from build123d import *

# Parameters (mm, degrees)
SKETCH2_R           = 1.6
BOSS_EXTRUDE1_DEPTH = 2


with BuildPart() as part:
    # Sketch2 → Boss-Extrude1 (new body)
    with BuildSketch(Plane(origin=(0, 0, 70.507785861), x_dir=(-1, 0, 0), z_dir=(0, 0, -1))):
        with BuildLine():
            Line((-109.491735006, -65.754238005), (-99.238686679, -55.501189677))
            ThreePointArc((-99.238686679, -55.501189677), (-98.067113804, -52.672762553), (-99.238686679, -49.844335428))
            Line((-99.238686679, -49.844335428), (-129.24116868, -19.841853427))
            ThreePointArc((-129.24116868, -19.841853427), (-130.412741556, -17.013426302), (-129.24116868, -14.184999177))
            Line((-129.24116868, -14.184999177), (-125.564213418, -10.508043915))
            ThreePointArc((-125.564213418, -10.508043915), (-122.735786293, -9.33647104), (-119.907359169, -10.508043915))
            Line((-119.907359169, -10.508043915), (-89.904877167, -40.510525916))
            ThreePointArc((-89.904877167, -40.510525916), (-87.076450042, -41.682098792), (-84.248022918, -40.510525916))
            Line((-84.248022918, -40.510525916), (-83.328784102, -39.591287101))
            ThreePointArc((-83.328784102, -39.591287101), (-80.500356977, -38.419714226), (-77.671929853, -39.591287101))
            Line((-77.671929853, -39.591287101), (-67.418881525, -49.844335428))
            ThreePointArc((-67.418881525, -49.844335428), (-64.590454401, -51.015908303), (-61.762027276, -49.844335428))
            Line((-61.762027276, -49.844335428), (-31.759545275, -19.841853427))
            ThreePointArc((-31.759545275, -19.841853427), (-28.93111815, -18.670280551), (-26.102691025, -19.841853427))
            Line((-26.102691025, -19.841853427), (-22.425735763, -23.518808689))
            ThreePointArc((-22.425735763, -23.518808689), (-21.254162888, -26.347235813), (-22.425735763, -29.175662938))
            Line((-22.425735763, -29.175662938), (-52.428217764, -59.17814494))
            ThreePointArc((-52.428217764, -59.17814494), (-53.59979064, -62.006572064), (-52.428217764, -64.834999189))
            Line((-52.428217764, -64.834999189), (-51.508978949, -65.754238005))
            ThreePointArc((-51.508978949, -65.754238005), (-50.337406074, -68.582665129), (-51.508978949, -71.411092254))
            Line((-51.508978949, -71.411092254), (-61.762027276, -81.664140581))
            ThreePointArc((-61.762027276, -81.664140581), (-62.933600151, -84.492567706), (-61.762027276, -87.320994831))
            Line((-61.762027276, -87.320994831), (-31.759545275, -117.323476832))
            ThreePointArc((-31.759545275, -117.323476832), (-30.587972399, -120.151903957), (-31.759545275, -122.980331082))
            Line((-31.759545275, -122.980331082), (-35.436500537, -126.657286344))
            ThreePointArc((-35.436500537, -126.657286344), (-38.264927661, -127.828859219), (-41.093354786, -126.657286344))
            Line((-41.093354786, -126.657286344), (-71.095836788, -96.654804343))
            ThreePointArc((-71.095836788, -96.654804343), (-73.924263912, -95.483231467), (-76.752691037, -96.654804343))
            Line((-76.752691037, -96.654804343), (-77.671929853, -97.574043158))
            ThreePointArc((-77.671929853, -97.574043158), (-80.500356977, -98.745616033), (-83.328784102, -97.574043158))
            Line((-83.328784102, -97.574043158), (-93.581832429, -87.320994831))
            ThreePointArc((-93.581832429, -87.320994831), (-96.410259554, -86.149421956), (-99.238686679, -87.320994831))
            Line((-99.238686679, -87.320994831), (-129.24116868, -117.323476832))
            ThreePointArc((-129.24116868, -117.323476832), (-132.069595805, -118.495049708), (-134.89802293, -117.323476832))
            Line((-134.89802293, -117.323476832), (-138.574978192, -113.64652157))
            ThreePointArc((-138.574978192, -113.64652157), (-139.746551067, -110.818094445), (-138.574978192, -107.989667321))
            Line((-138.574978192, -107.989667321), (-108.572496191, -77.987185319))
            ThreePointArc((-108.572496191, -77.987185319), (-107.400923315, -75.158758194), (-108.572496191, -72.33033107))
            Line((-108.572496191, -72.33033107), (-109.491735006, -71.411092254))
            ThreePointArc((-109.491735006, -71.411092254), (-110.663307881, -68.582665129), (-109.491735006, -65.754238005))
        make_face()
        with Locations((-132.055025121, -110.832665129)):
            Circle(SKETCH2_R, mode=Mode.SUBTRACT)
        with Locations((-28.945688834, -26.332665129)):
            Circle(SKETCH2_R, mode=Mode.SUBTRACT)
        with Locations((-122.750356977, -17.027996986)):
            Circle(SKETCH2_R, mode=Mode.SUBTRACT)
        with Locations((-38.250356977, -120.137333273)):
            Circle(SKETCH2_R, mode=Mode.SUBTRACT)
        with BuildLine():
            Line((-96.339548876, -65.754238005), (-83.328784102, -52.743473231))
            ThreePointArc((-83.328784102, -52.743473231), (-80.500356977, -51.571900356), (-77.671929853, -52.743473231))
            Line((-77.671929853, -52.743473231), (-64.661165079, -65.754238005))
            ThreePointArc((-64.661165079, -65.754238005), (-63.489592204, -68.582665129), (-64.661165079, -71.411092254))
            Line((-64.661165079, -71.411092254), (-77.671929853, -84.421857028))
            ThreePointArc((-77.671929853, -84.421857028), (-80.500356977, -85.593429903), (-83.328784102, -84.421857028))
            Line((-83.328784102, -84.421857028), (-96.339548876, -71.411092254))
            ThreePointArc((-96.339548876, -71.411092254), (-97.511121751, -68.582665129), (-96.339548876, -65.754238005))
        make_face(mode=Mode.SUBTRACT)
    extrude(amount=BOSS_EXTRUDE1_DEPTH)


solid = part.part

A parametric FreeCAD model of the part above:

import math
import FreeCAD as App
import Part
import Sketcher
Q = App.Units.Quantity

doc = App.newDocument("Part")
params = doc.addObject("Spreadsheet::Sheet", "Params")
for row, (alias, value) in enumerate([
    ("sketch1_radius", "4 mm"),
    ("sketch1_diameter", "3.2 mm"),
    ("sketch1_length", "14.5 mm"),
    ("sketch1_length2", "1.3 mm"),
    ("sketch1_length3", "18.4 mm"),
    ("pad1_length", "2 mm"),
], start=1):
    params.set(f"A{row}", alias)
    params.set(f"B{row}", "=" + value)
    params.setAlias(f"B{row}", alias)

body = doc.addObject("PartDesign::Body", "Body")

# Sketch on XY plane
sketch1 = body.newObject("Sketcher::SketchObject", "Sketch")
sketch1.AttachmentSupport = (doc.getObject("XY_Plane"), [""])
sketch1.MapMode = "FlatFace"
sketch1.AttachmentOffset = App.Placement(App.Vector(0, 0, 70.507786), App.Rotation())
sketch1.addGeometry(Part.LineSegment(App.Vector(99.2, -55.5, 0), App.Vector(109.5, -65.8, 0)), False)
sketch1.addGeometry(Part.ArcOfCircle(Part.Circle(App.Vector(106.7, -68.6, 0), App.Vector(0, 0, 1), 4), math.radians(-45), math.radians(45)), False)
sketch1.addGeometry(Part.LineSegment(App.Vector(109.5, -71.4, 0), App.Vector(108.6, -72.3, 0)), False)
sketch1.addGeometry(Part.ArcOfCircle(Part.Circle(App.Vector(111.4, -75.2, 0), App.Vector(0, 0, 1), 4), math.radians(135), math.radians(225)), False)
sketch1.addGeometry(Part.LineSegment(App.Vector(108.6, -78, 0), App.Vector(138.6, -108, 0)), False)
sketch1.addGeometry(Part.ArcOfCircle(Part.Circle(App.Vector(135.7, -110.8, 0), App.Vector(0, 0, 1), 4), math.radians(-45), math.radians(45)), False)
sketch1.addGeometry(Part.LineSegment(App.Vector(138.6, -113.6, 0), App.Vector(134.9, -117.3, 0)), False)
sketch1.addGeometry(Part.ArcOfCircle(Part.Circle(App.Vector(132.1, -114.5, 0), App.Vector(0, 0, 1), 4), math.radians(-135), math.radians(-45)), False)
sketch1.addGeometry(Part.LineSegment(App.Vector(129.2, -117.3, 0), App.Vector(99.2, -87.3, 0)), False)
sketch1.addGeometry(Part.ArcOfCircle(Part.Circle(App.Vector(96.4, -90.1, 0), App.Vector(0, 0, 1), 4), math.radians(45), math.radians(135)), False)
sketch1.addGeometry(Part.LineSegment(App.Vector(93.6, -87.3, 0), App.Vector(83.3, -97.6, 0)), False)
sketch1.addGeometry(Part.ArcOfCircle(Part.Circle(App.Vector(80.5, -94.7, 0), App.Vector(0, 0, 1), 4), math.radians(-135), math.radians(-45)), False)
sketch1.addGeometry(Part.LineSegment(App.Vector(77.7, -97.6, 0), App.Vector(76.8, -96.7, 0)), False)
sketch1.addGeometry(Part.ArcOfCircle(Part.Circle(App.Vector(73.9, -99.5, 0), App.Vector(0, 0, 1), 4), math.radians(45), math.radians(135)), False)
sketch1.addGeometry(Part.LineSegment(App.Vector(71.1, -96.7, 0), App.Vector(41.1, -126.7, 0)), False)
sketch1.addGeometry(Part.ArcOfCircle(Part.Circle(App.Vector(38.3, -123.8, 0), App.Vector(0, 0, 1), 4), math.radians(-135), math.radians(-45)), False)
sketch1.addGeometry(Part.LineSegment(App.Vector(35.4, -126.7, 0), App.Vector(31.8, -123, 0)), False)
sketch1.addGeometry(Part.ArcOfCircle(Part.Circle(App.Vector(34.6, -120.2, 0), App.Vector(0, 0, 1), 4), math.radians(135), math.radians(225)), False)
sketch1.addGeometry(Part.LineSegment(App.Vector(31.8, -117.3, 0), App.Vector(61.8, -87.3, 0)), False)
sketch1.addGeometry(Part.ArcOfCircle(Part.Circle(App.Vector(58.9, -84.5, 0), App.Vector(0, 0, 1), 4), math.radians(-45), math.radians(45)), False)
sketch1.addGeometry(Part.LineSegment(App.Vector(61.8, -81.7, 0), App.Vector(51.5, -71.4, 0)), False)
sketch1.addGeometry(Part.ArcOfCircle(Part.Circle(App.Vector(54.3, -68.6, 0), App.Vector(0, 0, 1), 4), math.radians(135), math.radians(225)), False)
sketch1.addGeometry(Part.LineSegment(App.Vector(51.5, -65.8, 0), App.Vector(52.4, -64.8, 0)), False)
sketch1.addGeometry(Part.ArcOfCircle(Part.Circle(App.Vector(49.6, -62, 0), App.Vector(0, 0, 1), 4), math.radians(-45), math.radians(45)), False)
sketch1.addGeometry(Part.LineSegment(App.Vector(52.4, -59.2, 0), App.Vector(22.4, -29.2, 0)), False)
sketch1.addGeometry(Part.ArcOfCircle(Part.Circle(App.Vector(25.3, -26.3, 0), App.Vector(0, 0, 1), 4), math.radians(135), math.radians(225)), False)
sketch1.addGeometry(Part.LineSegment(App.Vector(22.4, -23.5, 0), App.Vector(26.1, -19.8, 0)), False)
sketch1.addGeometry(Part.ArcOfCircle(Part.Circle(App.Vector(28.9, -22.7, 0), App.Vector(0, 0, 1), 4), math.radians(45), math.radians(135)), False)
sketch1.addGeometry(Part.LineSegment(App.Vector(31.8, -19.8, 0), App.Vector(61.8, -49.8, 0)), False)
sketch1.addGeometry(Part.ArcOfCircle(Part.Circle(App.Vector(64.6, -47, 0), App.Vector(0, 0, 1), 4), math.radians(-135), math.radians(-45)), False)
sketch1.addGeometry(Part.LineSegment(App.Vector(67.4, -49.8, 0), App.Vector(77.7, -39.6, 0)), False)
sketch1.addGeometry(Part.ArcOfCircle(Part.Circle(App.Vector(80.5, -42.4, 0), App.Vector(0, 0, 1), 4), math.radians(45), math.radians(135)), False)
sketch1.addGeometry(Part.LineSegment(App.Vector(83.3, -39.6, 0), App.Vector(84.2, -40.5, 0)), False)
sketch1.addGeometry(Part.ArcOfCircle(Part.Circle(App.Vector(87.1, -37.7, 0), App.Vector(0, 0, 1), 4), math.radians(-135), math.radians(-45)), False)
sketch1.addGeometry(Part.LineSegment(App.Vector(89.9, -40.5, 0), App.Vector(119.9, -10.5, 0)), False)
sketch1.addGeometry(Part.ArcOfCircle(Part.Circle(App.Vector(122.7, -13.3, 0), App.Vector(0, 0, 1), 4), math.radians(45), math.radians(135)), False)
sketch1.addGeometry(Part.LineSegment(App.Vector(125.6, -10.5, 0), App.Vector(129.2, -14.2, 0)), False)
sketch1.addGeometry(Part.ArcOfCircle(Part.Circle(App.Vector(126.4, -17, 0), App.Vector(0, 0, 1), 4), math.radians(-45), math.radians(45)), False)
sketch1.addGeometry(Part.LineSegment(App.Vector(129.2, -19.8, 0), App.Vector(99.2, -49.8, 0)), False)
sketch1.addGeometry(Part.ArcOfCircle(Part.Circle(App.Vector(102.1, -52.7, 0), App.Vector(0, 0, 1), 4), math.radians(135), math.radians(225)), False)
sketch1.addGeometry(Part.Circle(App.Vector(38.3, -120.1, 0), App.Vector(0, 0, 1), 1.6), False)
sketch1.addGeometry(Part.Circle(App.Vector(132.1, -110.8, 0), App.Vector(0, 0, 1), 1.6), False)
sketch1.addGeometry(Part.LineSegment(App.Vector(96.3, -65.8, 0), App.Vector(83.3, -52.7, 0)), False)
sketch1.addGeometry(Part.ArcOfCircle(Part.Circle(App.Vector(80.5, -55.6, 0), App.Vector(0, 0, 1), 4), math.radians(45), math.radians(135)), False)
sketch1.addGeometry(Part.LineSegment(App.Vector(77.7, -52.7, 0), App.Vector(64.7, -65.8, 0)), False)
sketch1.addGeometry(Part.ArcOfCircle(Part.Circle(App.Vector(67.5, -68.6, 0), App.Vector(0, 0, 1), 4), math.radians(135), math.radians(225)), False)
sketch1.addGeometry(Part.LineSegment(App.Vector(64.7, -71.4, 0), App.Vector(77.7, -84.4, 0)), False)
sketch1.addGeometry(Part.ArcOfCircle(Part.Circle(App.Vector(80.5, -81.6, 0), App.Vector(0, 0, 1), 4), math.radians(-135), math.radians(-45)), False)
sketch1.addGeometry(Part.LineSegment(App.Vector(83.3, -84.4, 0), App.Vector(96.3, -71.4, 0)), False)
sketch1.addGeometry(Part.ArcOfCircle(Part.Circle(App.Vector(93.5, -68.6, 0), App.Vector(0, 0, 1), 4), math.radians(-45), math.radians(45)), False)
sketch1.addGeometry(Part.Circle(App.Vector(28.9, -26.3, 0), App.Vector(0, 0, 1), 1.6), False)
sketch1.addGeometry(Part.Circle(App.Vector(122.8, -17, 0), App.Vector(0, 0, 1), 1.6), False)
sketch1.addConstraint(Sketcher.Constraint("Tangent", 0, 2, 1, 2))
sketch1.addConstraint(Sketcher.Constraint("Tangent", 1, 1, 2, 1))
sketch1.addConstraint(Sketcher.Constraint("Tangent", 2, 2, 3, 1))
sketch1.addConstraint(Sketcher.Constraint("Tangent", 3, 2, 4, 1))
sketch1.addConstraint(Sketcher.Constraint("Tangent", 4, 2, 5, 2))
sketch1.addConstraint(Sketcher.Constraint("Tangent", 5, 1, 6, 1))
sketch1.addConstraint(Sketcher.Constraint("Tangent", 6, 2, 7, 2))
sketch1.addConstraint(Sketcher.Constraint("Tangent", 7, 1, 8, 1))
sketch1.addConstraint(Sketcher.Constraint("Tangent", 8, 2, 9, 1))
sketch1.addConstraint(Sketcher.Constraint("Tangent", 9, 2, 10, 1))
sketch1.addConstraint(Sketcher.Constraint("Tangent", 10, 2, 11, 2))
sketch1.addConstraint(Sketcher.Constraint("Tangent", 11, 1, 12, 1))
sketch1.addConstraint(Sketcher.Constraint("Tangent", 12, 2, 13, 1))
sketch1.addConstraint(Sketcher.Constraint("Tangent", 13, 2, 14, 1))
sketch1.addConstraint(Sketcher.Constraint("Tangent", 14, 2, 15, 2))
sketch1.addConstraint(Sketcher.Constraint("Tangent", 15, 1, 16, 1))
sketch1.addConstraint(Sketcher.Constraint("Tangent", 16, 2, 17, 2))
sketch1.addConstraint(Sketcher.Constraint("Tangent", 17, 1, 18, 1))
sketch1.addConstraint(Sketcher.Constraint("Tangent", 18, 2, 19, 1))
sketch1.addConstraint(Sketcher.Constraint("Tangent", 19, 2, 20, 1))
sketch1.addConstraint(Sketcher.Constraint("Tangent", 20, 2, 21, 2))
sketch1.addConstraint(Sketcher.Constraint("Tangent", 21, 1, 22, 1))
sketch1.addConstraint(Sketcher.Constraint("Tangent", 22, 2, 23, 1))
sketch1.addConstraint(Sketcher.Constraint("Tangent", 23, 2, 24, 1))
sketch1.addConstraint(Sketcher.Constraint("Tangent", 24, 2, 25, 2))
sketch1.addConstraint(Sketcher.Constraint("Tangent", 25, 1, 26, 1))
sketch1.addConstraint(Sketcher.Constraint("Tangent", 26, 2, 27, 2))
sketch1.addConstraint(Sketcher.Constraint("Tangent", 27, 1, 28, 1))
sketch1.addConstraint(Sketcher.Constraint("Tangent", 28, 2, 29, 1))
sketch1.addConstraint(Sketcher.Constraint("Tangent", 29, 2, 30, 1))
sketch1.addConstraint(Sketcher.Constraint("Tangent", 30, 2, 31, 2))
sketch1.addConstraint(Sketcher.Constraint("Tangent", 31, 1, 32, 1))
sketch1.addConstraint(Sketcher.Constraint("Tangent", 32, 2, 33, 1))
sketch1.addConstraint(Sketcher.Constraint("Tangent", 33, 2, 34, 1))
sketch1.addConstraint(Sketcher.Constraint("Tangent", 34, 2, 35, 2))
sketch1.addConstraint(Sketcher.Constraint("Tangent", 35, 1, 36, 1))
sketch1.addConstraint(Sketcher.Constraint("Tangent", 36, 2, 37, 2))
sketch1.addConstraint(Sketcher.Constraint("Tangent", 37, 1, 38, 1))
sketch1.addConstraint(Sketcher.Constraint("Tangent", 38, 2, 39, 1))
sketch1.addConstraint(Sketcher.Constraint("Tangent", 39, 2, 0, 1))
sketch1.addConstraint(Sketcher.Constraint("Tangent", 42, 2, 43, 1))
sketch1.addConstraint(Sketcher.Constraint("Tangent", 43, 2, 44, 1))
sketch1.addConstraint(Sketcher.Constraint("Tangent", 44, 2, 45, 1))
sketch1.addConstraint(Sketcher.Constraint("Tangent", 45, 2, 46, 1))
sketch1.addConstraint(Sketcher.Constraint("Tangent", 46, 2, 47, 1))
sketch1.addConstraint(Sketcher.Constraint("Tangent", 47, 2, 48, 1))
sketch1.addConstraint(Sketcher.Constraint("Tangent", 48, 2, 49, 1))
sketch1.addConstraint(Sketcher.Constraint("Tangent", 49, 2, 42, 1))
sketch1.addConstraint(Sketcher.Constraint("Equal", 1, 3))
sketch1.addConstraint(Sketcher.Constraint("Equal", 3, 5))
sketch1.addConstraint(Sketcher.Constraint("Equal", 5, 7))
sketch1.addConstraint(Sketcher.Constraint("Equal", 7, 9))
sketch1.addConstraint(Sketcher.Constraint("Equal", 9, 11))
sketch1.addConstraint(Sketcher.Constraint("Equal", 11, 13))
sketch1.addConstraint(Sketcher.Constraint("Equal", 13, 15))
sketch1.addConstraint(Sketcher.Constraint("Equal", 15, 17))
sketch1.addConstraint(Sketcher.Constraint("Equal", 17, 19))
sketch1.addConstraint(Sketcher.Constraint("Equal", 19, 21))
sketch1.addConstraint(Sketcher.Constraint("Equal", 21, 23))
sketch1.addConstraint(Sketcher.Constraint("Equal", 23, 25))
sketch1.addConstraint(Sketcher.Constraint("Equal", 25, 27))
sketch1.addConstraint(Sketcher.Constraint("Equal", 27, 29))
sketch1.addConstraint(Sketcher.Constraint("Equal", 29, 31))
sketch1.addConstraint(Sketcher.Constraint("Equal", 31, 33))
sketch1.addConstraint(Sketcher.Constraint("Equal", 33, 35))
sketch1.addConstraint(Sketcher.Constraint("Equal", 35, 37))
sketch1.addConstraint(Sketcher.Constraint("Equal", 37, 39))
sketch1.addConstraint(Sketcher.Constraint("Equal", 40, 41))
sketch1.addConstraint(Sketcher.Constraint("Equal", 39, 43))
sketch1.addConstraint(Sketcher.Constraint("Equal", 43, 45))
sketch1.addConstraint(Sketcher.Constraint("Equal", 45, 47))
sketch1.addConstraint(Sketcher.Constraint("Equal", 47, 49))
sketch1.addConstraint(Sketcher.Constraint("Equal", 41, 50))
sketch1.addConstraint(Sketcher.Constraint("Equal", 50, 51))
sketch1.addConstraint(Sketcher.Constraint("Perpendicular", 0, 2))
sketch1.addConstraint(Sketcher.Constraint("Perpendicular", 2, 4))
sketch1.addConstraint(Sketcher.Constraint("Perpendicular", 4, 6))
sketch1.addConstraint(Sketcher.Constraint("Perpendicular", 6, 8))
sketch1.addConstraint(Sketcher.Constraint("Perpendicular", 8, 10))
sketch1.addConstraint(Sketcher.Constraint("Perpendicular", 10, 12))
sketch1.addConstraint(Sketcher.Constraint("Perpendicular", 12, 14))
sketch1.addConstraint(Sketcher.Constraint("Perpendicular", 14, 16))
sketch1.addConstraint(Sketcher.Constraint("Perpendicular", 16, 18))
sketch1.addConstraint(Sketcher.Constraint("Perpendicular", 18, 20))
sketch1.addConstraint(Sketcher.Constraint("Perpendicular", 20, 22))
sketch1.addConstraint(Sketcher.Constraint("Perpendicular", 22, 24))
sketch1.addConstraint(Sketcher.Constraint("Perpendicular", 24, 26))
sketch1.addConstraint(Sketcher.Constraint("Perpendicular", 26, 28))
sketch1.addConstraint(Sketcher.Constraint("Perpendicular", 28, 30))
sketch1.addConstraint(Sketcher.Constraint("Perpendicular", 30, 32))
sketch1.addConstraint(Sketcher.Constraint("Perpendicular", 32, 34))
sketch1.addConstraint(Sketcher.Constraint("Perpendicular", 34, 36))
sketch1.addConstraint(Sketcher.Constraint("Perpendicular", 36, 38))
sketch1.addConstraint(Sketcher.Constraint("Perpendicular", 38, 42))
sketch1.addConstraint(Sketcher.Constraint("Perpendicular", 42, 44))
sketch1.addConstraint(Sketcher.Constraint("Perpendicular", 44, 46))
sketch1.addConstraint(Sketcher.Constraint("Perpendicular", 46, 48))
sketch1.addConstraint(Sketcher.Constraint("Horizontal", 1, 3, 21, 3))
sketch1.addConstraint(Sketcher.Constraint("Horizontal", 21, 3, 45, 3))
sketch1.addConstraint(Sketcher.Constraint("Horizontal", 45, 3, 49, 3))
sketch1.addConstraint(Sketcher.Constraint("Horizontal", 6, 2, 7, 1))
sketch1.addConstraint(Sketcher.Constraint("Horizontal", 7, 1, 17, 1))
sketch1.addConstraint(Sketcher.Constraint("Horizontal", 9, 2, 18, 2))
sketch1.addConstraint(Sketcher.Constraint("Horizontal", 27, 1, 37, 1))
sketch1.addConstraint(Sketcher.Constraint("Horizontal", 29, 2, 38, 2))
sketch1.addConstraint(Sketcher.Constraint("Vertical", 11, 3, 31, 3))
sketch1.addConstraint(Sketcher.Constraint("Vertical", 31, 3, 43, 3))
sketch1.addConstraint(Sketcher.Constraint("Vertical", 17, 1, 27, 1))
sketch1.addConstraint(Sketcher.Constraint("Vertical", 19, 2, 28, 2))
sketch1.addConstraint(Sketcher.Constraint("Vertical", 7, 1, 36, 2))
sketch1.addConstraint(Sketcher.Constraint("Equal", 4, 8))
sketch1.addConstraint(Sketcher.Constraint("Equal", 0, 10))
sketch1.addConstraint(Sketcher.Constraint("Equal", 2, 12))
sketch1.addConstraint(Sketcher.Constraint("Equal", 8, 14))
sketch1.addConstraint(Sketcher.Constraint("Equal", 12, 22))
sketch1.addConstraint(Sketcher.Constraint("Equal", 22, 32))
sketch1.addConstraint(Sketcher.Constraint("Radius", 1, Q("4 mm")))
sketch1.addConstraint(Sketcher.Constraint("Diameter", 40, Q("3.2 mm")))
sketch1.addConstraint(Sketcher.Constraint("Distance", 0, Q("14.5 mm")))
sketch1.addConstraint(Sketcher.Constraint("Distance", 2, Q("1.3 mm")))
sketch1.addConstraint(Sketcher.Constraint("Distance", 42, Q("18.4 mm")))
sketch1.addConstraint(Sketcher.Constraint("DistanceY", 22, 2, -1, 1, Q("64.834999 mm")))
sketch1.addConstraint(Sketcher.Constraint("DistanceY", 36, 2, -1, 1, Q("14.184999 mm")))
sketch1.addConstraint(Sketcher.Constraint("DistanceX", -1, 1, 19, 3, Q("58.9336 mm")))
sketch1.addConstraint(Sketcher.Constraint("DistanceX", -1, 1, 50, 3, Q("28.945689 mm")))
sketch1.addConstraint(Sketcher.Constraint("DistanceX", -1, 1, 40, 3, Q("38.250357 mm")))
sketch1.addConstraint(Sketcher.Constraint("DistanceY", 40, 3, -1, 1, Q("120.137333 mm")))
sketch1.addConstraint(Sketcher.Constraint("DistanceX", -1, 1, 41, 3, Q("132.055025 mm")))
sketch1.addConstraint(Sketcher.Constraint("DistanceY", 41, 3, -1, 1, Q("110.832665 mm")))
sketch1.addConstraint(Sketcher.Constraint("DistanceY", 50, 3, -1, 1, Q("26.332665 mm")))
sketch1.addConstraint(Sketcher.Constraint("DistanceX", -1, 1, 51, 3, Q("122.750357 mm")))
sketch1.addConstraint(Sketcher.Constraint("DistanceY", 51, 3, -1, 1, Q("17.027997 mm")))
sketch1.setExpression("Constraints[116]", "Params.sketch1_radius")
sketch1.setExpression("Constraints[117]", "Params.sketch1_diameter")
sketch1.setExpression("Constraints[118]", "Params.sketch1_length")
sketch1.setExpression("Constraints[119]", "Params.sketch1_length2")
sketch1.setExpression("Constraints[120]", "Params.sketch1_length3")
pad1 = body.newObject("PartDesign::Pad", "Pad")
pad1.Profile = sketch1
pad1.setExpression("Length", "Params.pad1_length")
pad1.Reversed = True

doc.recompute()
